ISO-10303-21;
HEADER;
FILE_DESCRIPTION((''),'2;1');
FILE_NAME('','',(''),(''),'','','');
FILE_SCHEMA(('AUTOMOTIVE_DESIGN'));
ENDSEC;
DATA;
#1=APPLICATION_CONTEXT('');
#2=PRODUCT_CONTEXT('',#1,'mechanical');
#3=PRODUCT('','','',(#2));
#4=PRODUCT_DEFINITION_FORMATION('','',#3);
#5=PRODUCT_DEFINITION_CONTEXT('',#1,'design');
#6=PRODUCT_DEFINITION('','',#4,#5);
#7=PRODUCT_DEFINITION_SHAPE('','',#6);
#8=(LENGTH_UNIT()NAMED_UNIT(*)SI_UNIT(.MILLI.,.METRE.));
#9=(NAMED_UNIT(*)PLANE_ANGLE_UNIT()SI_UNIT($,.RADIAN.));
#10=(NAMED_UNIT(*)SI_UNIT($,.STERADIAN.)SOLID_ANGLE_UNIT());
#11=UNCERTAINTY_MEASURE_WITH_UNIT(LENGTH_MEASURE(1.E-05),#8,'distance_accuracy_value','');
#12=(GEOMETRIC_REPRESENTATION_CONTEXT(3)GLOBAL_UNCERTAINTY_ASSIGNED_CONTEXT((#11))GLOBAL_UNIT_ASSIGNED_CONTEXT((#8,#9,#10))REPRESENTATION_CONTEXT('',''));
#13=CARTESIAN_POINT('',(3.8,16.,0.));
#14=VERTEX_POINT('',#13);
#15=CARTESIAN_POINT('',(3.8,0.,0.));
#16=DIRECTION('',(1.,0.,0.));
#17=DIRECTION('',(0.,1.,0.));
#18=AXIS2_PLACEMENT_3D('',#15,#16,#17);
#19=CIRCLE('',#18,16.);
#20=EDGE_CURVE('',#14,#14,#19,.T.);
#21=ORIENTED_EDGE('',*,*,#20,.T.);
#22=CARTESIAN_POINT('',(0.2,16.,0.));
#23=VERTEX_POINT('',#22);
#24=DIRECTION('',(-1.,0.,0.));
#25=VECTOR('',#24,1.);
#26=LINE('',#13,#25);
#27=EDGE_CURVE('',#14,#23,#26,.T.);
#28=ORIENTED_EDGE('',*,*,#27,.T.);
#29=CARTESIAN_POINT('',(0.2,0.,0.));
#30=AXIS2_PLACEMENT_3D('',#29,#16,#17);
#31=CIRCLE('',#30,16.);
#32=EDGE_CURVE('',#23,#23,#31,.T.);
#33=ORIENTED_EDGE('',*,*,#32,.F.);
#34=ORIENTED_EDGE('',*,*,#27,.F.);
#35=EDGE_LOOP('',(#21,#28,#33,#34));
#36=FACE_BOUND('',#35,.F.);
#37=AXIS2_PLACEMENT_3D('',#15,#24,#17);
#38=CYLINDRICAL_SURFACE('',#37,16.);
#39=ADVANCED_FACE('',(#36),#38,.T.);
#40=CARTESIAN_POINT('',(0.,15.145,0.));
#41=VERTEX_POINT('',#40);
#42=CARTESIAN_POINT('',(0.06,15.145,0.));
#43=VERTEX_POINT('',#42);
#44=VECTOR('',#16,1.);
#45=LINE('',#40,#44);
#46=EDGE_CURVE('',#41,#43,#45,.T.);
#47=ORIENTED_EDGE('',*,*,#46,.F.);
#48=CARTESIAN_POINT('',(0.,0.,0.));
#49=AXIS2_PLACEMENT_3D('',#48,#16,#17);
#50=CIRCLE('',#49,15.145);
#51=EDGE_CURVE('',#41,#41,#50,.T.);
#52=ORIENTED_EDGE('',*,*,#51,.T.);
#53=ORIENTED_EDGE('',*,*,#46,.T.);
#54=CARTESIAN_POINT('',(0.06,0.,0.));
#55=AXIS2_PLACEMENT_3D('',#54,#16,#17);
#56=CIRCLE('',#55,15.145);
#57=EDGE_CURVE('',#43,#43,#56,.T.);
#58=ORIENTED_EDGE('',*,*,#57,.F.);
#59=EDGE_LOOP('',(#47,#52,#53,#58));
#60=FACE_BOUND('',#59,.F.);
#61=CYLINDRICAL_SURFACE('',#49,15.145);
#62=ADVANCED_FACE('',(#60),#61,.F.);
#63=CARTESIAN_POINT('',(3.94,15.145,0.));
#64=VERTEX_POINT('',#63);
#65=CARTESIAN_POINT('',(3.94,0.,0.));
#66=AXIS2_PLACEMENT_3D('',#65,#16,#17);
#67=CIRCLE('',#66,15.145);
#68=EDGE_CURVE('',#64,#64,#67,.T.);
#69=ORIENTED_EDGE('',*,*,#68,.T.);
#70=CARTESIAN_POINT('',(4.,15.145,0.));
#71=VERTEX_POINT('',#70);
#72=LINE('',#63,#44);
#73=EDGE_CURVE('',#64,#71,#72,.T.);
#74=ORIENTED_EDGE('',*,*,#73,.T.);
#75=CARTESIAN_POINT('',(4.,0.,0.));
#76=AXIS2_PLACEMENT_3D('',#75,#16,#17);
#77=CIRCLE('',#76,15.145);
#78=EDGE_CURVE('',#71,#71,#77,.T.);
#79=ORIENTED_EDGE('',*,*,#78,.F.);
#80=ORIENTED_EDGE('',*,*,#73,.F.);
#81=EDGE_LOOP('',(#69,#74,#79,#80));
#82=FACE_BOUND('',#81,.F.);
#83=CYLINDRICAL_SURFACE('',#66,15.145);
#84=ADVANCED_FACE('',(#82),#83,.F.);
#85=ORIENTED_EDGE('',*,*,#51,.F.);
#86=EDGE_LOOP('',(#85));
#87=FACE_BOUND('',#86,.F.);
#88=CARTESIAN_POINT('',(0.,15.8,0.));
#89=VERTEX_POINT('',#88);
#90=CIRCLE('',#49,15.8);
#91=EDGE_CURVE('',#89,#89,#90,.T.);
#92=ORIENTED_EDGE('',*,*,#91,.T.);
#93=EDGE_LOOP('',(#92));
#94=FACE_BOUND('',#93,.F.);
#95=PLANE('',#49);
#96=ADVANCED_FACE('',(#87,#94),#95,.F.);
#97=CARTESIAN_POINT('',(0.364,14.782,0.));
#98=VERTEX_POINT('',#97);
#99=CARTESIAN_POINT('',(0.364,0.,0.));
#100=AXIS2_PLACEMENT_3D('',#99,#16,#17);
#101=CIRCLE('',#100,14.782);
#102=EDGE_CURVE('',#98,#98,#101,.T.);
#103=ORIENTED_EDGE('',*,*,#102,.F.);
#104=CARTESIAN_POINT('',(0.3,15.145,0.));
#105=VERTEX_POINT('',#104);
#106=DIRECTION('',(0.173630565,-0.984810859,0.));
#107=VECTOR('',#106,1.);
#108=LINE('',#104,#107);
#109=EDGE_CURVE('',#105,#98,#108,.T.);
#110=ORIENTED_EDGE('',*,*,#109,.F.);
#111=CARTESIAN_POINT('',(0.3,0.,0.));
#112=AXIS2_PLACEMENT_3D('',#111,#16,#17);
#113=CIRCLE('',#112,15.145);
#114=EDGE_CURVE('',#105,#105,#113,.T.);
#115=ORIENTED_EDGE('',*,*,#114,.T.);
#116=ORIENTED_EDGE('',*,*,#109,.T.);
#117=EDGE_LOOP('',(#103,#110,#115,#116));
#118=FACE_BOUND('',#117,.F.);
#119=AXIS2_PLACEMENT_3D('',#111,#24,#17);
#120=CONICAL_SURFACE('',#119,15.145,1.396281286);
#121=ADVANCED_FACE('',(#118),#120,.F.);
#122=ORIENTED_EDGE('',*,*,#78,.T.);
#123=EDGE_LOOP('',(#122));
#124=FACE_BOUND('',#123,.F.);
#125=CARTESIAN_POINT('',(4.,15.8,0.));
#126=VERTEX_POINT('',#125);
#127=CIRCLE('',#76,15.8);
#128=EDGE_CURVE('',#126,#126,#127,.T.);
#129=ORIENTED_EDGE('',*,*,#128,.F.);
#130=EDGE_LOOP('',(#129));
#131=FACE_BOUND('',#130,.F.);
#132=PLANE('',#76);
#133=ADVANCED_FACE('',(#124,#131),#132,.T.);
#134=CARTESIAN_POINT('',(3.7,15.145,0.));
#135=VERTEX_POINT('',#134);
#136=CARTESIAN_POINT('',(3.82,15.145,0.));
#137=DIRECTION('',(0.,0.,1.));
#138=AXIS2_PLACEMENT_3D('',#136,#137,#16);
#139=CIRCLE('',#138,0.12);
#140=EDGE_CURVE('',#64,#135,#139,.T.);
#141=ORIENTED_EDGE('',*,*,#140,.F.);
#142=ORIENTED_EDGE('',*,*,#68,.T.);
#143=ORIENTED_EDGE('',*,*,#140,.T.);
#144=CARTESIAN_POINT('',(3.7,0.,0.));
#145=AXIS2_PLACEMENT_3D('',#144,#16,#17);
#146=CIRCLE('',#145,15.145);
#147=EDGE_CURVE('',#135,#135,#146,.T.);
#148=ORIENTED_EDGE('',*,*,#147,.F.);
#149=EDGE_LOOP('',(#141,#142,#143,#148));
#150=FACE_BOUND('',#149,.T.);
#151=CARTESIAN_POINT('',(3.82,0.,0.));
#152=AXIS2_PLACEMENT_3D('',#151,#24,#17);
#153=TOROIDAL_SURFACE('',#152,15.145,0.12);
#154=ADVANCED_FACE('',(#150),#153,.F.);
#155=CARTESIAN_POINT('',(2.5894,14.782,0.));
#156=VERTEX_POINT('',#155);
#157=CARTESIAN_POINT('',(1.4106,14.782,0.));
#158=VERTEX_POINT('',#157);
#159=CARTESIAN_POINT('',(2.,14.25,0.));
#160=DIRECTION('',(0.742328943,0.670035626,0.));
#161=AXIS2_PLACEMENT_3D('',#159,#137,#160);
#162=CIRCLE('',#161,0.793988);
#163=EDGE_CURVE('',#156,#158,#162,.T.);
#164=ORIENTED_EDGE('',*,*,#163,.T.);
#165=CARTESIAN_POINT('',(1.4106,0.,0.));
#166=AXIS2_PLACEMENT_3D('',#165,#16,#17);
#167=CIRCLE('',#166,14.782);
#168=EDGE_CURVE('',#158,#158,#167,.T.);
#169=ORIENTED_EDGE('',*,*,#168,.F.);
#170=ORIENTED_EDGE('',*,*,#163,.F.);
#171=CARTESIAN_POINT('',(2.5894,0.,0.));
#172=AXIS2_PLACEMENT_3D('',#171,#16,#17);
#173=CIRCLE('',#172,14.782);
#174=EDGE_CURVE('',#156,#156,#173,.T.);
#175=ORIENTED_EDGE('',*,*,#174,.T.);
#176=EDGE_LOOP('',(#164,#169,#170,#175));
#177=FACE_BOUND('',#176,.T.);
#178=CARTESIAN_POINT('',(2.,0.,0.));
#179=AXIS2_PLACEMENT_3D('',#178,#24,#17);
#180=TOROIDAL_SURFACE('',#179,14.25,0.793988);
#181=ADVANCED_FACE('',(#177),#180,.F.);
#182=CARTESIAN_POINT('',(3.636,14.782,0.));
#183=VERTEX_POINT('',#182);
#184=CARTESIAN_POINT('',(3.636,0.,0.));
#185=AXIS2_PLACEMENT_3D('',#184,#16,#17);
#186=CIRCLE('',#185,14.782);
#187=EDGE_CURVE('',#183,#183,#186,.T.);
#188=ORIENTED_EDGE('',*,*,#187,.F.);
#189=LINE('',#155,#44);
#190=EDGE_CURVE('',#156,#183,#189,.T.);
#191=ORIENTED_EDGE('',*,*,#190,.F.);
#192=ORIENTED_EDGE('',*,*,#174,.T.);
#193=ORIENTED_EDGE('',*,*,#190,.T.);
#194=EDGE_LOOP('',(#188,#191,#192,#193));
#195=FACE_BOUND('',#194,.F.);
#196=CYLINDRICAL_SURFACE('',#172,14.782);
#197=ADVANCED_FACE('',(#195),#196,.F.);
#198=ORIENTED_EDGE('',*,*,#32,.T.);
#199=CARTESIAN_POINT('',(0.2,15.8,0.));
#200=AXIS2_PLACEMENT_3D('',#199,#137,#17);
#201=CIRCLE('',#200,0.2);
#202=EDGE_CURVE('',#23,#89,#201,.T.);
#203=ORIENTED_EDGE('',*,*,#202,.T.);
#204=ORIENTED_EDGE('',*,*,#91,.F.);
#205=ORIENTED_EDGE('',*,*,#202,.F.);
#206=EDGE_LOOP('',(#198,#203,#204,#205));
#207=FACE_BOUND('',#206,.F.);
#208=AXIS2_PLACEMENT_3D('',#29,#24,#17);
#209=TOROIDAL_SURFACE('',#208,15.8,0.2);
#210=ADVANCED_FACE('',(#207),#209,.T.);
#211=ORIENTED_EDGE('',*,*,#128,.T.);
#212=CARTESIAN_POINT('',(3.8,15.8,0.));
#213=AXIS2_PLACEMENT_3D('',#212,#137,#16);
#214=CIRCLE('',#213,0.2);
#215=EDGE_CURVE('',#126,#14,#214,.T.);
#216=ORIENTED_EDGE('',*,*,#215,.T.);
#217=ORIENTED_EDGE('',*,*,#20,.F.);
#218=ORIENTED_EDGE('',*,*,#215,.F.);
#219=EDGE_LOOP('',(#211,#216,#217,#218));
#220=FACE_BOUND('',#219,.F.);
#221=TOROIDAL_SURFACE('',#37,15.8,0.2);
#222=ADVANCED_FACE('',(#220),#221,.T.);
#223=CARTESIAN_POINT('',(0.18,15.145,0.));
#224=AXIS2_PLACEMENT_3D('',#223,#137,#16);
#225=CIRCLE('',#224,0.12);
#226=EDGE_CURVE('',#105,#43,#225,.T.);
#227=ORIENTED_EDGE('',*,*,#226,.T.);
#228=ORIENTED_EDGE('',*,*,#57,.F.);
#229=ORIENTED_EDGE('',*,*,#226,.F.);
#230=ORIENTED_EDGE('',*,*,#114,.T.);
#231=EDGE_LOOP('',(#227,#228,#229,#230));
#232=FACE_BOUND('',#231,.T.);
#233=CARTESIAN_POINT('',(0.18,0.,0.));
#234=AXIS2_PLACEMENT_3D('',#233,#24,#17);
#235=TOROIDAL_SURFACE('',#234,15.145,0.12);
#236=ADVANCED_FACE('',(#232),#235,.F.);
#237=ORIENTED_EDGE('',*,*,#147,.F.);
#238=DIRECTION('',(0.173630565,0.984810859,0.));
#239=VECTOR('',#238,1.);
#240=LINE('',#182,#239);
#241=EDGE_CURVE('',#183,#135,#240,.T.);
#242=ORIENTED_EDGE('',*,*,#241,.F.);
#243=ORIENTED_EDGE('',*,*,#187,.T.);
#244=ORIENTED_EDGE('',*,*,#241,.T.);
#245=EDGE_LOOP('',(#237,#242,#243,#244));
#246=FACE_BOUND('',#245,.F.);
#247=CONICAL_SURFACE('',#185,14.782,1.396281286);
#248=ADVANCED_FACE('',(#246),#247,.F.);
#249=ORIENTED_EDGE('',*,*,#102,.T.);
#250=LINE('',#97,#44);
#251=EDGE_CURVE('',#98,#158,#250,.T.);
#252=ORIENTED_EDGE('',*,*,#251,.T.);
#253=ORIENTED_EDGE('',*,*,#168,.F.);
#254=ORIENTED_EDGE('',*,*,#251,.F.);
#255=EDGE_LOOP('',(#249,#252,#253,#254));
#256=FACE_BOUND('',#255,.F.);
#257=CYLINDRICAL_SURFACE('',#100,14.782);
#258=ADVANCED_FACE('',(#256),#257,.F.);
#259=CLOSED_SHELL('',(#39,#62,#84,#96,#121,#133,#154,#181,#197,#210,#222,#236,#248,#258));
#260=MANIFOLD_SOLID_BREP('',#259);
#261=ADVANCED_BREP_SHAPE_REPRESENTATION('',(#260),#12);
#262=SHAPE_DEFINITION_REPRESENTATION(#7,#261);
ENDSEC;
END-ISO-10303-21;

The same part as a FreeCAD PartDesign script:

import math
import FreeCAD as App
import Part
import Sketcher
Q = App.Units.Quantity

doc = App.newDocument("Part")
body = doc.addObject("PartDesign::Body", "Body")

# Sketch on XY plane
sketch1 = body.newObject("Sketcher::SketchObject", "Sketch")
sketch1.AttachmentSupport = (doc.getObject("XY_Plane"), [""])
sketch1.MapMode = "FlatFace"
sketch1.addGeometry(Part.LineSegment(App.Vector(0, 15.8, 0), App.Vector(0, 15.14, 0)), False)
sketch1.addGeometry(Part.LineSegment(App.Vector(0, 15.14, 0), App.Vector(0.06, 15.14, 0)), False)
sketch1.addGeometry(Part.ArcOfCircle(Part.Circle(App.Vector(0.18, 15.14, 0), App.Vector(0, 0, 1), 0.12), math.radians(0), math.radians(180)), False)
sketch1.addGeometry(Part.LineSegment(App.Vector(0.3, 15.14, 0), App.Vector(0.36, 14.78, 0)), False)
sketch1.addGeometry(Part.LineSegment(App.Vector(0.36, 14.78, 0), App.Vector(1.41, 14.78, 0)), False)
sketch1.addGeometry(Part.ArcOfCircle(Part.Circle(App.Vector(2, 14.25, 0), App.Vector(0, 0, 1), 0.79), math.radians(42), math.radians(138)), False)
sketch1.addGeometry(Part.LineSegment(App.Vector(2.59, 14.78, 0), App.Vector(3.64, 14.78, 0)), False)
sketch1.addGeometry(Part.LineSegment(App.Vector(3.64, 14.78, 0), App.Vector(3.7, 15.14, 0)), False)
sketch1.addGeometry(Part.ArcOfCircle(Part.Circle(App.Vector(3.82, 15.14, 0), App.Vector(0, 0, 1), 0.12), math.radians(0), math.radians(180)), False)
sketch1.addGeometry(Part.LineSegment(App.Vector(3.94, 15.14, 0), App.Vector(4, 15.14, 0)), False)
sketch1.addGeometry(Part.LineSegment(App.Vector(4, 15.14, 0), App.Vector(4, 15.8, 0)), False)
sketch1.addGeometry(Part.ArcOfCircle(Part.Circle(App.Vector(3.8, 15.8, 0), App.Vector(0, 0, 1), 0.2), math.radians(0), math.radians(90)), False)
sketch1.addGeometry(Part.LineSegment(App.Vector(3.8, 16, 0), App.Vector(0.2, 16, 0)), False)
sketch1.addGeometry(Part.ArcOfCircle(Part.Circle(App.Vector(0.2, 15.8, 0), App.Vector(0, 0, 1), 0.2), math.radians(90), math.radians(180)), False)
sketch1.addConstraint(Sketcher.Constraint("Coincident", 0, 2, 1, 1))
sketch1.addConstraint(Sketcher.Constraint("Coincident", 1, 2, 2, 2))
sketch1.addConstraint(Sketcher.Constraint("Coincident", 2, 1, 3, 1))
sketch1.addConstraint(Sketcher.Constraint("Coincident", 3, 2, 4, 1))
sketch1.addConstraint(Sketcher.Constraint("Coincident", 4, 2, 5, 2))
sketch1.addConstraint(Sketcher.Constraint("Coincident", 5, 1, 6, 1))
sketch1.addConstraint(Sketcher.Constraint("Coincident", 6, 2, 7, 1))
sketch1.addConstraint(Sketcher.Constraint("Coincident", 7, 2, 8, 2))
sketch1.addConstraint(Sketcher.Constraint("Coincident", 8, 1, 9, 1))
sketch1.addConstraint(Sketcher.Constraint("Coincident", 9, 2, 10, 1))
sketch1.addConstraint(Sketcher.Constraint("Tangent", 10, 2, 11, 1))
sketch1.addConstraint(Sketcher.Constraint("Tangent", 11, 2, 12, 1))
sketch1.addConstraint(Sketcher.Constraint("Tangent", 12, 2, 13, 1))
sketch1.addConstraint(Sketcher.Constraint("Tangent", 13, 2, 0, 1))
sketch1.addConstraint(Sketcher.Constraint("Vertical", 0))
sketch1.addConstraint(Sketcher.Constraint("Horizontal", 1))
sketch1.addConstraint(Sketcher.Constraint("Horizontal", 4))
sketch1.addConstraint(Sketcher.Constraint("Horizontal", 6))
sketch1.addConstraint(Sketcher.Constraint("Horizontal", 9))
sketch1.addConstraint(Sketcher.Constraint("Vertical", 10))
sketch1.addConstraint(Sketcher.Constraint("Horizontal", 12))
sketch1.addConstraint(Sketcher.Constraint("Equal", 2, 8))
sketch1.addConstraint(Sketcher.Constraint("Equal", 11, 13))
sketch1.addConstraint(Sketcher.Constraint("PointOnObject", 0, 2, -2))
sketch1.addConstraint(Sketcher.Constraint("Horizontal", 2, 3, 8, 3))
sketch1.addConstraint(Sketcher.Constraint("Horizontal", 8, 3, 0, 2))
sketch1.addConstraint(Sketcher.Constraint("Horizontal", 1, 2, 2, 1))
sketch1.addConstraint(Sketcher.Constraint("Horizontal", 4, 2, 5, 1))
sketch1.addConstraint(Sketcher.Constraint("Horizontal", 2, 1, 7, 2))
sketch1.addConstraint(Sketcher.Constraint("Horizontal", 7, 2, 8, 1))
sketch1.addConstraint(Sketcher.Constraint("Equal", 4, 6))
sketch1.addConstraint(Sketcher.Constraint("Equal", 1, 9))
sketch1.addConstraint(Sketcher.Constraint("Equal", 3, 7))
sketch1.addConstraint(Sketcher.Constraint("Radius", 11, Q("0.2 mm")))
sketch1.addConstraint(Sketcher.Constraint("Angle", 3, Q("-80.001 deg")))
sketch1.addConstraint(Sketcher.Constraint("Radius", 2, Q("0.12 mm")))
sketch1.addConstraint(Sketcher.Constraint("DistanceX", 12, 2, 12, 1, Q("3.6 mm")))
sketch1.addConstraint(Sketcher.Constraint("DistanceY", -1, 1, 11, 2, Q("16 mm")))
sketch1.addConstraint(Sketcher.Constraint("Radius", 5, Q("0.794 mm")))
sketch1.addConstraint(Sketcher.Constraint("DistanceX", 1, 1, 1, 2, Q("0.06 mm")))
sketch1.addConstraint(Sketcher.Constraint("DistanceY", 0, 2, 0, 1, Q("0.655 mm")))
sketch1.addConstraint(Sketcher.Constraint("DistanceY", -1, 1, 5, 3, Q("14.25 mm")))
sketch1.addConstraint(Sketcher.Constraint("DistanceX", 4, 1, 4, 2, Q("1.0466 mm")))
revolution = body.newObject("PartDesign::Revolution", "Revolution")
revolution.Profile = sketch1
revolution.ReferenceAxis = (sketch1, ["H_Axis"])
revolution.Angle = 360

doc.recompute()
